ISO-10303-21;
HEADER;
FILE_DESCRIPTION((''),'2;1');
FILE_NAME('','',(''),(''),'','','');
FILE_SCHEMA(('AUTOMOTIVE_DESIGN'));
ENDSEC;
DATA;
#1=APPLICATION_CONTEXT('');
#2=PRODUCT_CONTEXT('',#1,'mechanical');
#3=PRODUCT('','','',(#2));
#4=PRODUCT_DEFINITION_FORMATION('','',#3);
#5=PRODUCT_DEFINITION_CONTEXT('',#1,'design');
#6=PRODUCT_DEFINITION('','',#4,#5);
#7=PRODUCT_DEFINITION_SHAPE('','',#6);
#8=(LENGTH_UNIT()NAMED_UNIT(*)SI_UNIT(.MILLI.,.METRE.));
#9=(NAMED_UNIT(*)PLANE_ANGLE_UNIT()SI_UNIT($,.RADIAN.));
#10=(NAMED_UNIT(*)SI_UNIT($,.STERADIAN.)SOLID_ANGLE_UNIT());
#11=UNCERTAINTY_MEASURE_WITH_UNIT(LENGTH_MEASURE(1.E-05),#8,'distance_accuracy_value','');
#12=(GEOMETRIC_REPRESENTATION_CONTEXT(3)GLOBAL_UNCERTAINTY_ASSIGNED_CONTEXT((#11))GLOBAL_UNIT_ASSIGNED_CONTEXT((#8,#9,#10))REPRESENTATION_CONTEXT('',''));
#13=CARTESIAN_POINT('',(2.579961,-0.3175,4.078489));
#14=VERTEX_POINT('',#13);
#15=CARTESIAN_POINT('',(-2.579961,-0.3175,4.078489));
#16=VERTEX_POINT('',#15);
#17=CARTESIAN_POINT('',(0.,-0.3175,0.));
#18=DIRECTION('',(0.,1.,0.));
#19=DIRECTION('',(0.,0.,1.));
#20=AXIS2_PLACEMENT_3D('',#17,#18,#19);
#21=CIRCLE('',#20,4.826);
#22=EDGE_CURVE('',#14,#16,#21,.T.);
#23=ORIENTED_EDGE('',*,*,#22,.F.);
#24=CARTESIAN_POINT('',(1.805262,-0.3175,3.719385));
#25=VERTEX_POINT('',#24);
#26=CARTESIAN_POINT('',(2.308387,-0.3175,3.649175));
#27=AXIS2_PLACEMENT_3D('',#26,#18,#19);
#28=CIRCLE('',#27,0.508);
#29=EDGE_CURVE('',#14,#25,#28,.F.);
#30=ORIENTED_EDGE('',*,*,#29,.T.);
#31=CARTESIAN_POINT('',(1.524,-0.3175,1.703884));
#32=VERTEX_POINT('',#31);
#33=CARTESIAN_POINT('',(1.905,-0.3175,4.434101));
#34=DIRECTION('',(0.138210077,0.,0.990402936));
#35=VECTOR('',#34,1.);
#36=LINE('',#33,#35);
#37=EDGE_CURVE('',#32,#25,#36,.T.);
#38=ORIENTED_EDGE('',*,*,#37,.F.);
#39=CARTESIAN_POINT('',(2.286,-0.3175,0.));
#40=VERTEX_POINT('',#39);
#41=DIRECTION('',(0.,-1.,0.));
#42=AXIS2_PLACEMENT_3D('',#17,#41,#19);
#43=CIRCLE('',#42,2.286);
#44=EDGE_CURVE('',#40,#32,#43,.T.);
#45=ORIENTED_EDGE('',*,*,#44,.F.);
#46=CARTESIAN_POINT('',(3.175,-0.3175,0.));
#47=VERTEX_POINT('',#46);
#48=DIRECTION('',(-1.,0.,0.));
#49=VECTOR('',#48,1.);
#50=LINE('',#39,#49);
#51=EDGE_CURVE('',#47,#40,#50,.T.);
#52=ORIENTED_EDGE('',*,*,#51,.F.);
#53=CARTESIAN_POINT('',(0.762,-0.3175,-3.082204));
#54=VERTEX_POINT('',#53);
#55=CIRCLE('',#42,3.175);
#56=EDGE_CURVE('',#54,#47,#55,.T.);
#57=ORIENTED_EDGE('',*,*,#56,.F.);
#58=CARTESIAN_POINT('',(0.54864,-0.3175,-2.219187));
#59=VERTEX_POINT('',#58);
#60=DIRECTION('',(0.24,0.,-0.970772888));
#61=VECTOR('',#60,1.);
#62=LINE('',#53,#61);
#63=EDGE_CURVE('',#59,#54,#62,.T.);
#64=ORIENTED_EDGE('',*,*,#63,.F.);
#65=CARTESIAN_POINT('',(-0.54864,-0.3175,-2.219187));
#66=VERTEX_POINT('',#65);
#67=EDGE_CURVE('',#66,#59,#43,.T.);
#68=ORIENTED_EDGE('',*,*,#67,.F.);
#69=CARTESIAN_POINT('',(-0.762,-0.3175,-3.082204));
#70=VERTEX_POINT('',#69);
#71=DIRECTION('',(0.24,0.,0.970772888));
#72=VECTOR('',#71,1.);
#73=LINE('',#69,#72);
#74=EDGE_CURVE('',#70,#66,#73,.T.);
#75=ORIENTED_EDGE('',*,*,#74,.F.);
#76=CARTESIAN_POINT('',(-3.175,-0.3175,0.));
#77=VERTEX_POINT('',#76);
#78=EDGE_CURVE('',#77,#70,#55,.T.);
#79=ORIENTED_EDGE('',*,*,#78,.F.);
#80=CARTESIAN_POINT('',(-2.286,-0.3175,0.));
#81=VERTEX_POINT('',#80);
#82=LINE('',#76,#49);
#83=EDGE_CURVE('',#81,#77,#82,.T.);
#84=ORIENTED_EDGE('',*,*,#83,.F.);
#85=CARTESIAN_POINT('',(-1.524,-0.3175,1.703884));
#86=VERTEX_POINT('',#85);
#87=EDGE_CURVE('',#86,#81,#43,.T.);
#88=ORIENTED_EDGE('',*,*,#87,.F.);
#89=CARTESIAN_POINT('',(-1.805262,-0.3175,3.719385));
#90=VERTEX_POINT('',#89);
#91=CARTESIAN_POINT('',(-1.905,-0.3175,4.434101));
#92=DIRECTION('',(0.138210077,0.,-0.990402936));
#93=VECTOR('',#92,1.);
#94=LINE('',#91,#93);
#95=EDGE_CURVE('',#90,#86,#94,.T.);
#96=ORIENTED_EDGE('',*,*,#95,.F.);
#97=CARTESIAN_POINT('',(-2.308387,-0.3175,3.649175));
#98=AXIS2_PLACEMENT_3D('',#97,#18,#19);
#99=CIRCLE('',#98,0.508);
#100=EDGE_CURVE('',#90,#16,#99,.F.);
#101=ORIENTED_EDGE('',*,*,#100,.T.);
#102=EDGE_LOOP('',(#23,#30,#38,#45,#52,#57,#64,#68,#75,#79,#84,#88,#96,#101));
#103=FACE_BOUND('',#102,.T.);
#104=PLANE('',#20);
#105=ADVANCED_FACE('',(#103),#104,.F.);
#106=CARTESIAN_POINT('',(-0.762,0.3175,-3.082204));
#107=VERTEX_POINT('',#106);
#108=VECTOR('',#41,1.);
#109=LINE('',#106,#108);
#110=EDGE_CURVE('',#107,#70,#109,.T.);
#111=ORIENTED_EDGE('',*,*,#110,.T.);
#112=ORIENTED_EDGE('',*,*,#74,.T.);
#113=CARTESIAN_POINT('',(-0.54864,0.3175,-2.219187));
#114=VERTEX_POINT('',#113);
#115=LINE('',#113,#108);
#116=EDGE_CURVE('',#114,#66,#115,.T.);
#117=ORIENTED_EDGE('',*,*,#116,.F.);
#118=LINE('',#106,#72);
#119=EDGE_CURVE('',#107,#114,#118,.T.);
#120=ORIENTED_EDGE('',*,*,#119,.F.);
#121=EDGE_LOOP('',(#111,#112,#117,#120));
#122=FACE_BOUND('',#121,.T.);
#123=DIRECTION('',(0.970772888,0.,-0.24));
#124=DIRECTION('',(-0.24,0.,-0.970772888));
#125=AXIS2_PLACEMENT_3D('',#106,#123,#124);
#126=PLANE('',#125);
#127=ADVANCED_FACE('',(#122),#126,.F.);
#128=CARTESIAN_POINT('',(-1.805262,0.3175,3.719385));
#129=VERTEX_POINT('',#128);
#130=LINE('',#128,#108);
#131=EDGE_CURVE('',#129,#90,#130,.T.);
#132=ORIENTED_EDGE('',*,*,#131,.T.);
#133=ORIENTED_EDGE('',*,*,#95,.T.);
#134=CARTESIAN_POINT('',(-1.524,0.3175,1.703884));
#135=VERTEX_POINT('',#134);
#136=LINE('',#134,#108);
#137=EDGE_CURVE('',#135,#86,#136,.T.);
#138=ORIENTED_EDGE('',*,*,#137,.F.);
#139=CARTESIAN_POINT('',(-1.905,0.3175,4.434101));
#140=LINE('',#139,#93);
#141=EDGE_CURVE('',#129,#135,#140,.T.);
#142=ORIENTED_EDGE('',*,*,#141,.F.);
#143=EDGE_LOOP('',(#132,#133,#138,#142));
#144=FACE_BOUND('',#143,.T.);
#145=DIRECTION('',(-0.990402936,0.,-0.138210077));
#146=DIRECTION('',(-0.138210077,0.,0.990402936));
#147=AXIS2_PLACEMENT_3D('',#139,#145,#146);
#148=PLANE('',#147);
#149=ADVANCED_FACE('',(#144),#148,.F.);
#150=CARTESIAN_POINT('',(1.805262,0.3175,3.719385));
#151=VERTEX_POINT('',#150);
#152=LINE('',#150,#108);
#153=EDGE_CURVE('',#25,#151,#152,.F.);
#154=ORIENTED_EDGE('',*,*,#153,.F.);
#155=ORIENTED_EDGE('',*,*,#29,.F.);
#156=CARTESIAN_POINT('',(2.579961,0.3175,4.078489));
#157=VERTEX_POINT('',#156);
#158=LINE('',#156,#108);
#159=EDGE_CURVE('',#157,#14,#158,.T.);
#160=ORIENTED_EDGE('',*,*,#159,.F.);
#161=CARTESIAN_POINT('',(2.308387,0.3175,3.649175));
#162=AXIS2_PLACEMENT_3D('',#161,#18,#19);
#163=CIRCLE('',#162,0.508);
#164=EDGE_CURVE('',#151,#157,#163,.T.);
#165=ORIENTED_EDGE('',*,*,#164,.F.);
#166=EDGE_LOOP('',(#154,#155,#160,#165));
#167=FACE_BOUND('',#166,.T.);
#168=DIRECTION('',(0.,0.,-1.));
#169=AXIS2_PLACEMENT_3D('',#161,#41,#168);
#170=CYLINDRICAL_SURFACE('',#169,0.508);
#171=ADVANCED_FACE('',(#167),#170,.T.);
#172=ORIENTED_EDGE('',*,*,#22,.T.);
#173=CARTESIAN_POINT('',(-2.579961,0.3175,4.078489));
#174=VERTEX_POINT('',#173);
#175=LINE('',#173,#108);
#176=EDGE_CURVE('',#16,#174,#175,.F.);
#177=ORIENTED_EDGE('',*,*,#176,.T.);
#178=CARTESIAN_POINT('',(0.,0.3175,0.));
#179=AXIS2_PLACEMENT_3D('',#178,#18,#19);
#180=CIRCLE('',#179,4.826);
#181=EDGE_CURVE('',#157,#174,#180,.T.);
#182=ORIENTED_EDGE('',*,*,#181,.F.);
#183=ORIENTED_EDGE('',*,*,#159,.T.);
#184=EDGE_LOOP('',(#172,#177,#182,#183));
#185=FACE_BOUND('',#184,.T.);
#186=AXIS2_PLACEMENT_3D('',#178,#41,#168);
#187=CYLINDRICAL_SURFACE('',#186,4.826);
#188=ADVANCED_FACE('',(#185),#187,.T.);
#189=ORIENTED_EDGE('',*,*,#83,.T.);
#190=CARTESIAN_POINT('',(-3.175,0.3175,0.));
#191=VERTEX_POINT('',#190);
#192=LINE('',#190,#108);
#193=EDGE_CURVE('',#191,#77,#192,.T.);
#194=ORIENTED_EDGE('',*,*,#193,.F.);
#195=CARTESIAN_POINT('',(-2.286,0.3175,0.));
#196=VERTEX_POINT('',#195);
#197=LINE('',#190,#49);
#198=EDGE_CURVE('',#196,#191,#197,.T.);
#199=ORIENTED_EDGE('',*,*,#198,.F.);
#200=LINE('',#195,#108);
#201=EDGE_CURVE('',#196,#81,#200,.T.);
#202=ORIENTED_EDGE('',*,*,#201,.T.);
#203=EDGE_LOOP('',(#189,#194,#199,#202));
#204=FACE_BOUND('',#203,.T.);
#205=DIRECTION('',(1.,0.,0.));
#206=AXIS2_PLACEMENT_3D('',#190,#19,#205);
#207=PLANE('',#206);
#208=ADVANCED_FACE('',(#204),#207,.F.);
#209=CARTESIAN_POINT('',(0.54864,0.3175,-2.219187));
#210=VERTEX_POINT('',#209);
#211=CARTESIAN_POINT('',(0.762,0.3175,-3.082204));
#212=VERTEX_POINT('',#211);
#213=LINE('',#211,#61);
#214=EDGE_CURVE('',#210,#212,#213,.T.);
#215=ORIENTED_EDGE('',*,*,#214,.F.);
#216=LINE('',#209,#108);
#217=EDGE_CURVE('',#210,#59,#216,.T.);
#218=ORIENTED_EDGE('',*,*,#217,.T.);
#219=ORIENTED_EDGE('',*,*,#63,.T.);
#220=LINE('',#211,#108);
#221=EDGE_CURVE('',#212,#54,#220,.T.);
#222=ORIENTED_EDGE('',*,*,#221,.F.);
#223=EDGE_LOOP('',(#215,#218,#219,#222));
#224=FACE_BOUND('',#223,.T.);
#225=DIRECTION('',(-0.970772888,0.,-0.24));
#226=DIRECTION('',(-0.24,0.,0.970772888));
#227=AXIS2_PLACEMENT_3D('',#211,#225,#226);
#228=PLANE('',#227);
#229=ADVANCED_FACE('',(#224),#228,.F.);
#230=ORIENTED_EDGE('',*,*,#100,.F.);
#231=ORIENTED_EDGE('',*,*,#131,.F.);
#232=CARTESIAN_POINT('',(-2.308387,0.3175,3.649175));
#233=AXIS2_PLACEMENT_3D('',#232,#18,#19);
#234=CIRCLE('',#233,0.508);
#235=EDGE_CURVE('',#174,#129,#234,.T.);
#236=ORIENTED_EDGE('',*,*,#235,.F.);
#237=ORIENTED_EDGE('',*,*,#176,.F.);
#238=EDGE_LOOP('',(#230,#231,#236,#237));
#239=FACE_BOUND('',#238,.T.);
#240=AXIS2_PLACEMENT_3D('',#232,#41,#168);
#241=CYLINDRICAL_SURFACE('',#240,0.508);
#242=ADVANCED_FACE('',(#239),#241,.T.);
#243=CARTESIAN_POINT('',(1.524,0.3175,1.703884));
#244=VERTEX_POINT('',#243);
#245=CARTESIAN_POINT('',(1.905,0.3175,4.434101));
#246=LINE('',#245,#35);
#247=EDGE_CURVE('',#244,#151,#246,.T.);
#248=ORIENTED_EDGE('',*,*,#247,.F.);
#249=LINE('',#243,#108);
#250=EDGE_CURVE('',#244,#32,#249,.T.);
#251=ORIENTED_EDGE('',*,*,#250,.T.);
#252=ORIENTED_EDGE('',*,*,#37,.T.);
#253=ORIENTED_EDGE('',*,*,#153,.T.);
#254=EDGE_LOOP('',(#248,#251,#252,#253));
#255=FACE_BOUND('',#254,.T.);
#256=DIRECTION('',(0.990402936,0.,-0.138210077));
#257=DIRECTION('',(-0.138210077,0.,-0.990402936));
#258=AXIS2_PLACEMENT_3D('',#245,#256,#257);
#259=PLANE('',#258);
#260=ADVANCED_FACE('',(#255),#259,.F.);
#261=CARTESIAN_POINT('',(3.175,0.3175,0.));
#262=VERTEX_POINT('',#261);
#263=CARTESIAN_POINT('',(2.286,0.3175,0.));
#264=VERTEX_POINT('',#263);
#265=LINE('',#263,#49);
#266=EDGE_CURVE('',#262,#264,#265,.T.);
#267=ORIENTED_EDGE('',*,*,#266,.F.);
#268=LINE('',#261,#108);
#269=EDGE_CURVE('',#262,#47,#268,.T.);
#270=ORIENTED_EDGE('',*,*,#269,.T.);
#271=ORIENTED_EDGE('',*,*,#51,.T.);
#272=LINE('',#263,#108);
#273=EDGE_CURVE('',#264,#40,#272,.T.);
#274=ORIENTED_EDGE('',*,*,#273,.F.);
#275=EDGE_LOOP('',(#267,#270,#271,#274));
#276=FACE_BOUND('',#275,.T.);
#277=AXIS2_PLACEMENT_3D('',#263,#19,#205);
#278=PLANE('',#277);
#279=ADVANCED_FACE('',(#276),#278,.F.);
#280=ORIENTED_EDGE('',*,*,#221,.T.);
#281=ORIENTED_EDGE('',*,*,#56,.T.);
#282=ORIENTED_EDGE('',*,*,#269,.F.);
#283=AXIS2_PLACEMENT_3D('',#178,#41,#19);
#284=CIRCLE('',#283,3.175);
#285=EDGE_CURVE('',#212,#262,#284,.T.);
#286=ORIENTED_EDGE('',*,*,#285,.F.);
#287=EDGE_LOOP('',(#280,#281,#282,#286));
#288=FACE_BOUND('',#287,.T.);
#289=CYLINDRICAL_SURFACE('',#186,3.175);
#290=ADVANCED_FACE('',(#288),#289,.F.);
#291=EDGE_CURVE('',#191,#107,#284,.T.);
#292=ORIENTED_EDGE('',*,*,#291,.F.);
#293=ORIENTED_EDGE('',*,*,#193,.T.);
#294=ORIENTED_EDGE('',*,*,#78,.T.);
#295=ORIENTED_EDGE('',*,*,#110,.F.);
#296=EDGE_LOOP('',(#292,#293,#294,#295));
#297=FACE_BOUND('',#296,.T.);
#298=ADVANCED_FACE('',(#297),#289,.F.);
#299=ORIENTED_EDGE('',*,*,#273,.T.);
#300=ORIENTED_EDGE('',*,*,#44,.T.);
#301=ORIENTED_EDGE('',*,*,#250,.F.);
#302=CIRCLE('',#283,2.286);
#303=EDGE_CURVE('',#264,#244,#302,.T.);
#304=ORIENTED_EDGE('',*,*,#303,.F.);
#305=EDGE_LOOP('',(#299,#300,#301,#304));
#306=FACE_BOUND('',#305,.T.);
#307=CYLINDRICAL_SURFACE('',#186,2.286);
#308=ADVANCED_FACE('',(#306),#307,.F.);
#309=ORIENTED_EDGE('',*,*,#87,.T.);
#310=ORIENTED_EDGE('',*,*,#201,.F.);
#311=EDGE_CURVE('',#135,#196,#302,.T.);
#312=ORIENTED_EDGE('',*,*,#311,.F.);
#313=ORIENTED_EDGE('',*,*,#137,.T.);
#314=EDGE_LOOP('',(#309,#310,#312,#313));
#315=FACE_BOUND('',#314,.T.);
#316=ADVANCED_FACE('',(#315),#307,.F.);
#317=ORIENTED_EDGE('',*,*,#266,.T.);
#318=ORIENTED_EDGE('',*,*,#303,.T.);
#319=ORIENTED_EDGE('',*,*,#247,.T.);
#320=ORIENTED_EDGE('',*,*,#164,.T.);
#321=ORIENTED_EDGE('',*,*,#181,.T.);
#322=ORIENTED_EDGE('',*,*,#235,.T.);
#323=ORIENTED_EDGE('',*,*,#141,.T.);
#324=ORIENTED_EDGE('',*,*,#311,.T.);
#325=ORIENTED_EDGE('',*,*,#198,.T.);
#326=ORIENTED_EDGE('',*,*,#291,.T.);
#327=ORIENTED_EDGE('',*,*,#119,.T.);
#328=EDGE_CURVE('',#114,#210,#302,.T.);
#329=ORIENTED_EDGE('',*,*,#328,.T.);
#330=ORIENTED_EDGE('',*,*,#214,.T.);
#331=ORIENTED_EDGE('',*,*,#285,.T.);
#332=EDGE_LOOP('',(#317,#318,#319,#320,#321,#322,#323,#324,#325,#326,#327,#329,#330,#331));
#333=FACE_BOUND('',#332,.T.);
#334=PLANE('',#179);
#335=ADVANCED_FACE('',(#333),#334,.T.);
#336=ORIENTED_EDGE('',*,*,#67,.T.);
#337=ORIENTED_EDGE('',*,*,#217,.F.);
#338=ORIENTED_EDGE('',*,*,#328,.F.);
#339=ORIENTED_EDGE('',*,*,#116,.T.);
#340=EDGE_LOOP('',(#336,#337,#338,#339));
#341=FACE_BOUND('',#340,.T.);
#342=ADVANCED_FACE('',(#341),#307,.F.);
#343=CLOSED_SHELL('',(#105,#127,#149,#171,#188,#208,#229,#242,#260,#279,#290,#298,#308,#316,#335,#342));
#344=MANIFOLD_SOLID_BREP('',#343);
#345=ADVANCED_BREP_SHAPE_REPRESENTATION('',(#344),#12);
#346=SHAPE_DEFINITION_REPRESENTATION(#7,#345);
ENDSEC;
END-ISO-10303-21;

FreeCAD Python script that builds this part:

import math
import FreeCAD as App
import Part
import Sketcher
Q = App.Units.Quantity


def edges_at(feature, points):
    """Names of the edges that pass closest to the given points."""
    edges = feature.Shape.Edges
    near = lambda p: min(range(len(edges)), key=lambda i: edges[i].distToShape(Part.Vertex(*p))[0])
    return sorted({f"Edge{near(p) + 1}" for p in points})

doc = App.newDocument("Part")
body = doc.addObject("PartDesign::Body", "Body")

sketch1 = doc.addObject("Sketcher::SketchObject", "Sketch")
body.addObject(sketch1)
sketch1.AttachmentSupport = (doc.XZ_Plane, [""])
sketch1.MapMode = "FlatFace"
sketch1.addGeometry(Part.LineSegment(App.Vector(-2.286, 0, 0), App.Vector(-3.175, 0, 0)), False)
sketch1.addGeometry(Part.ArcOfCircle(Part.Circle(App.Vector(0, 0, 0), App.Vector(0, 0, 1), 3.175), math.radians(180), math.radians(256.11346)), False)
sketch1.addGeometry(Part.LineSegment(App.Vector(-0.762, -3.082204, 0), App.Vector(-0.54864, -2.219187, 0)), False)
sketch1.addGeometry(Part.ArcOfCircle(Part.Circle(App.Vector(0, 0, 0), App.Vector(0, 0, 1), 2.286), math.radians(-103.88654), math.radians(-76.11346)), False)
sketch1.addGeometry(Part.LineSegment(App.Vector(0.54864, -2.219187, 0), App.Vector(0.762, -3.082204, 0)), False)
sketch1.addGeometry(Part.ArcOfCircle(Part.Circle(App.Vector(0, 0, 0), App.Vector(0, 0, 1), 3.175), math.radians(-76.11346), math.radians(0)), False)
sketch1.addGeometry(Part.LineSegment(App.Vector(3.175, 0, 0), App.Vector(2.286, 0, 0)), False)
sketch1.addGeometry(Part.ArcOfCircle(Part.Circle(App.Vector(0, 0, 0), App.Vector(0, 0, 1), 2.286), math.radians(0), math.radians(48.189685)), False)
sketch1.addGeometry(Part.LineSegment(App.Vector(1.524, 1.703884, 0), App.Vector(1.905, 4.434101, 0)), False)
sketch1.addGeometry(Part.ArcOfCircle(Part.Circle(App.Vector(0, 0, 0), App.Vector(0, 0, 1), 4.826), math.radians(113.249563), math.radians(426.750437)), False)
sketch1.addGeometry(Part.LineSegment(App.Vector(-1.905, 4.434101, 0), App.Vector(-1.524, 1.703884, 0)), False)
sketch1.addGeometry(Part.ArcOfCircle(Part.Circle(App.Vector(0, 0, 0), App.Vector(0, 0, 1), 2.286), math.radians(131.810315), math.radians(180)), False)
sketch1.addConstraint(Sketcher.Constraint("Coincident", 0, 2, 1, 1))
sketch1.addConstraint(Sketcher.Constraint("Coincident", 1, 2, 2, 1))
sketch1.addConstraint(Sketcher.Constraint("Coincident", 2, 2, 3, 1))
sketch1.addConstraint(Sketcher.Constraint("Coincident", 3, 2, 4, 1))
sketch1.addConstraint(Sketcher.Constraint("Coincident", 4, 2, 5, 1))
sketch1.addConstraint(Sketcher.Constraint("Coincident", 5, 2, 6, 1))
sketch1.addConstraint(Sketcher.Constraint("Coincident", 6, 2, 7, 1))
sketch1.addConstraint(Sketcher.Constraint("Coincident", 7, 2, 8, 1))
sketch1.addConstraint(Sketcher.Constraint("Coincident", 8, 2, 9, 2))
sketch1.addConstraint(Sketcher.Constraint("Coincident", 9, 1, 10, 1))
sketch1.addConstraint(Sketcher.Constraint("Coincident", 10, 2, 11, 1))
sketch1.addConstraint(Sketcher.Constraint("Coincident", 11, 2, 0, 1))
sketch1.addConstraint(Sketcher.Constraint("Horizontal", 0))
sketch1.addConstraint(Sketcher.Constraint("Horizontal", 6))
sketch1.addConstraint(Sketcher.Constraint("Coincident", 1, 3, -1, 1))
sketch1.addConstraint(Sketcher.Constraint("Coincident", 3, 3, -1, 1))
sketch1.addConstraint(Sketcher.Constraint("Coincident", 5, 3, -1, 1))
sketch1.addConstraint(Sketcher.Constraint("Coincident", 7, 3, -1, 1))
sketch1.addConstraint(Sketcher.Constraint("Coincident", 9, 3, -1, 1))
sketch1.addConstraint(Sketcher.Constraint("Coincident", 11, 3, -1, 1))
sketch1.addConstraint(Sketcher.Constraint("Equal", 1, 5))
sketch1.addConstraint(Sketcher.Constraint("Equal", 3, 7))
sketch1.addConstraint(Sketcher.Constraint("Equal", 7, 11))
sketch1.addConstraint(Sketcher.Constraint("PointOnObject", 0, 2, -1))
sketch1.addConstraint(Sketcher.Constraint("PointOnObject", 5, 2, -1))
sketch1.addConstraint(Sketcher.Constraint("Horizontal", 2, 2, 3, 2))
sketch1.addConstraint(Sketcher.Constraint("Horizontal", 1, 2, 4, 2))
sketch1.addConstraint(Sketcher.Constraint("Horizontal", 8, 2, 9, 1))
sketch1.addConstraint(Sketcher.Constraint("Horizontal", 7, 2, 10, 2))
sketch1.addConstraint(Sketcher.Constraint("Radius", 3, Q("0.09 in")))
sketch1.addConstraint(Sketcher.Constraint("Radius", 9, Q("0.19 in")))
sketch1.addConstraint(Sketcher.Constraint("Radius", 1, Q("0.125 in")))
sketch1.addConstraint(Sketcher.Constraint("DistanceX", 1, 2, -1, 1, Q("0.03 in")))
sketch1.addConstraint(Sketcher.Constraint("DistanceX", -1, 1, 7, 2, Q("0.06 in")))
sketch1.addConstraint(Sketcher.Constraint("DistanceX", 8, 2, 5, 2, Q("0.05 in")))
sketch1.addConstraint(Sketcher.Constraint("DistanceX", 2, 2, -1, 1, Q("0.0216 in")))
pad1 = doc.addObject("PartDesign::Pad", "Pad")
body.addObject(pad1)
pad1.Profile = sketch1
pad1.Length = Q("0.025 in")
pad1.Midplane = True
doc.recompute()

fillet = doc.addObject("PartDesign::Fillet", "Fillet")
body.addObject(fillet)
fillet.Base = (pad1, edges_at(pad1, [(-1.905, 0, 4.434), (1.905, 0, 4.434)]))
fillet.Radius = Q("0.02 in")

doc.recompute()
